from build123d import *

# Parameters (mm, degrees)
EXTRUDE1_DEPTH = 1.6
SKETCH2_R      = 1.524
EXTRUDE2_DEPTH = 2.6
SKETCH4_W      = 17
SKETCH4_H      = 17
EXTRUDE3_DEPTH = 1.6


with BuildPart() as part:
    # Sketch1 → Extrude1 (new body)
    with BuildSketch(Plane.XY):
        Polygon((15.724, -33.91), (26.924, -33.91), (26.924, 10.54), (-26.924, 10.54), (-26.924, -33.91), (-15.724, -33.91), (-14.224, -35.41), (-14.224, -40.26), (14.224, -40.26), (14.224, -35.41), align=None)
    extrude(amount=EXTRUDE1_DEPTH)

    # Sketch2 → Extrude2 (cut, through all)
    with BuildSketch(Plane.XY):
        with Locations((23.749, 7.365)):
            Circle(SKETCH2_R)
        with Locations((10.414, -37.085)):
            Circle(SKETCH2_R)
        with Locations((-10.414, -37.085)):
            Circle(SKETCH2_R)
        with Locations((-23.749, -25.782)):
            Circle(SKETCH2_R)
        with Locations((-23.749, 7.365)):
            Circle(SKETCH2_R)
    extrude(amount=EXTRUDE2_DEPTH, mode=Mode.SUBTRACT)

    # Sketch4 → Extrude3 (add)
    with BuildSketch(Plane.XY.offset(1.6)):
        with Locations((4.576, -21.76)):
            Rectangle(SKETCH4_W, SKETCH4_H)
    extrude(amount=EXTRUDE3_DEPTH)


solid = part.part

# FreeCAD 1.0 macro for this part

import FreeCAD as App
import Part
import Sketcher


def add_polygon(sketch, points):
    """Adds a closed chain of lines whose ends are joined by coincident constraints."""
    first, n = sketch.GeometryCount, len(points)
    for a, b in zip(points, points[1:] + points[:1]):
        sketch.addGeometry(Part.LineSegment(App.Vector(*a, 0), App.Vector(*b, 0)), False)
    for i in range(n):
        sketch.addConstraint(Sketcher.Constraint("Coincident", first + i, 2, first + (i + 1) % n, 1))

doc = App.newDocument("Part")
body = doc.addObject("PartDesign::Body", "Body")

# Sketch on XY plane
sketch1 = doc.addObject("Sketcher::SketchObject", "Sketch")
body.addObject(sketch1)
sketch1.AttachmentSupport = (doc.XY_Plane, [""])
sketch1.MapMode = "FlatFace"
add_polygon(sketch1, [(15.7, -33.9), (26.9, -33.9), (26.9, 10.5), (-26.9, 10.5), (-26.9, -33.9), (-15.7, -33.9), (-14.2, -35.4), (-14.2, -40.3), (14.2, -40.3), (14.2, -35.4)])  # lines 0-9
sketch1.addConstraint([
    Sketcher.Constraint("Horizontal", 0),
    Sketcher.Constraint("Vertical", 1),
    Sketcher.Constraint("Horizontal", 2),
    Sketcher.Constraint("Vertical", 3),
    Sketcher.Constraint("Horizontal", 4),
    Sketcher.Constraint("Vertical", 6),
    Sketcher.Constraint("Horizontal", 7),
    Sketcher.Constraint("Vertical", 8),
    Sketcher.Constraint("Symmetric", 0, 2, 3, 2, -2),
    Sketcher.Constraint("Symmetric", 5, 2, 8, 2, -2),
    Sketcher.Constraint("Perpendicular", 5, 9),
    Sketcher.Constraint("Equal", 0, 4),
    Sketcher.Constraint("DistanceX", 0, 1, 0, 2, 11.2),
    Sketcher.Constraint("DistanceY", 1, 1, 1, 2, 44.45),
    Sketcher.Constraint("DistanceY", 6, 2, 6, 1, 4.85),
    Sketcher.Constraint("DistanceX", 4, 2, 5, 2, 1.5),
    Sketcher.Constraint("DistanceX", 2, 2, 2, 1, 53.848),
    Sketcher.Constraint("DistanceY", 0, 2, -1, 1, 33.91),
])
pad1 = doc.addObject("PartDesign::Pad", "Pad")
body.addObject(pad1)
pad1.Profile = sketch1
pad1.Length = 1.6

# Sketch on XY plane
sketch2 = doc.addObject("Sketcher::SketchObject", "Sketch001")
body.addObject(sketch2)
sketch2.AttachmentSupport = (doc.XY_Plane, [""])
sketch2.MapMode = "FlatFace"
sketch2.addGeometry([
    Part.Circle(App.Vector(23.7, 7.4, 0), App.Vector(0, 0, 1), 1.5),  # 0
    Part.Circle(App.Vector(10.4, -37.1, 0), App.Vector(0, 0, 1), 1.5),  # 1
    Part.Circle(App.Vector(-10.4, -37.1, 0), App.Vector(0, 0, 1), 1.5),  # 2
    Part.Circle(App.Vector(-23.7, -25.8, 0), App.Vector(0, 0, 1), 1.5),  # 3
    Part.Circle(App.Vector(-23.7, 7.4, 0), App.Vector(0, 0, 1), 1.5),  # 4
], False)
sketch2.addConstraint([
    Sketcher.Constraint("Equal", 0, 1),
    Sketcher.Constraint("Equal", 1, 2),
    Sketcher.Constraint("Equal", 2, 3),
    Sketcher.Constraint("Equal", 3, 4),
    Sketcher.Constraint("Symmetric", 1, 3, 2, 3, -2),
    Sketcher.Constraint("Symmetric", 0, 3, 4, 3, -2),
    Sketcher.Constraint("Vertical", 3, 3, 4, 3),
    Sketcher.Constraint("Diameter", 0, 3.048),
    Sketcher.Constraint("DistanceY", 1, 3, 0, 3, 44.45),
    Sketcher.Constraint("DistanceX", -1, 1, 0, 3, 23.749),
    Sketcher.Constraint("DistanceY", -1, 1, 0, 3, 7.365),
    Sketcher.Constraint("DistanceX", -1, 1, 1, 3, 10.414),
    Sketcher.Constraint("DistanceY", 3, 3, -1, 1, 25.782),
])
pocket1 = doc.addObject("PartDesign::Pocket", "Pocket")
body.addObject(pocket1)
pocket1.Profile = sketch2
pocket1.Type = "ThroughAll"
pocket1.Reversed = True

# Sketch on XY plane
sketch3 = doc.addObject("Sketcher::SketchObject", "Sketch002")
body.addObject(sketch3)
sketch3.AttachmentSupport = (doc.XY_Plane, [""])
sketch3.MapMode = "FlatFace"
sketch3.AttachmentOffset = App.Placement(App.Vector(0, 0, 1.6), App.Rotation())
add_polygon(sketch3, [(-4, -13), (-4, -30), (13, -30), (13, -13)])  # lines 0-3
sketch3.addConstraint([
    Sketcher.Constraint("Vertical", 0),
    Sketcher.Constraint("Horizontal", 1),
    Sketcher.Constraint("Vertical", 2),
    Sketcher.Constraint("Horizontal", 3),
    Sketcher.Constraint("Equal", 3, 0),
    Sketcher.Constraint("DistanceX", 1, 1, 1, 2, 17.0),
    Sketcher.Constraint("DistanceY", 0, 2, -1, 1, 30.26),
    Sketcher.Constraint("DistanceX", 0, 2, -1, 1, 3.924),
])
pad2 = doc.addObject("PartDesign::Pad", "Pad001")
body.addObject(pad2)
pad2.Profile = sketch3
pad2.Length = 1.6

doc.recompute()
